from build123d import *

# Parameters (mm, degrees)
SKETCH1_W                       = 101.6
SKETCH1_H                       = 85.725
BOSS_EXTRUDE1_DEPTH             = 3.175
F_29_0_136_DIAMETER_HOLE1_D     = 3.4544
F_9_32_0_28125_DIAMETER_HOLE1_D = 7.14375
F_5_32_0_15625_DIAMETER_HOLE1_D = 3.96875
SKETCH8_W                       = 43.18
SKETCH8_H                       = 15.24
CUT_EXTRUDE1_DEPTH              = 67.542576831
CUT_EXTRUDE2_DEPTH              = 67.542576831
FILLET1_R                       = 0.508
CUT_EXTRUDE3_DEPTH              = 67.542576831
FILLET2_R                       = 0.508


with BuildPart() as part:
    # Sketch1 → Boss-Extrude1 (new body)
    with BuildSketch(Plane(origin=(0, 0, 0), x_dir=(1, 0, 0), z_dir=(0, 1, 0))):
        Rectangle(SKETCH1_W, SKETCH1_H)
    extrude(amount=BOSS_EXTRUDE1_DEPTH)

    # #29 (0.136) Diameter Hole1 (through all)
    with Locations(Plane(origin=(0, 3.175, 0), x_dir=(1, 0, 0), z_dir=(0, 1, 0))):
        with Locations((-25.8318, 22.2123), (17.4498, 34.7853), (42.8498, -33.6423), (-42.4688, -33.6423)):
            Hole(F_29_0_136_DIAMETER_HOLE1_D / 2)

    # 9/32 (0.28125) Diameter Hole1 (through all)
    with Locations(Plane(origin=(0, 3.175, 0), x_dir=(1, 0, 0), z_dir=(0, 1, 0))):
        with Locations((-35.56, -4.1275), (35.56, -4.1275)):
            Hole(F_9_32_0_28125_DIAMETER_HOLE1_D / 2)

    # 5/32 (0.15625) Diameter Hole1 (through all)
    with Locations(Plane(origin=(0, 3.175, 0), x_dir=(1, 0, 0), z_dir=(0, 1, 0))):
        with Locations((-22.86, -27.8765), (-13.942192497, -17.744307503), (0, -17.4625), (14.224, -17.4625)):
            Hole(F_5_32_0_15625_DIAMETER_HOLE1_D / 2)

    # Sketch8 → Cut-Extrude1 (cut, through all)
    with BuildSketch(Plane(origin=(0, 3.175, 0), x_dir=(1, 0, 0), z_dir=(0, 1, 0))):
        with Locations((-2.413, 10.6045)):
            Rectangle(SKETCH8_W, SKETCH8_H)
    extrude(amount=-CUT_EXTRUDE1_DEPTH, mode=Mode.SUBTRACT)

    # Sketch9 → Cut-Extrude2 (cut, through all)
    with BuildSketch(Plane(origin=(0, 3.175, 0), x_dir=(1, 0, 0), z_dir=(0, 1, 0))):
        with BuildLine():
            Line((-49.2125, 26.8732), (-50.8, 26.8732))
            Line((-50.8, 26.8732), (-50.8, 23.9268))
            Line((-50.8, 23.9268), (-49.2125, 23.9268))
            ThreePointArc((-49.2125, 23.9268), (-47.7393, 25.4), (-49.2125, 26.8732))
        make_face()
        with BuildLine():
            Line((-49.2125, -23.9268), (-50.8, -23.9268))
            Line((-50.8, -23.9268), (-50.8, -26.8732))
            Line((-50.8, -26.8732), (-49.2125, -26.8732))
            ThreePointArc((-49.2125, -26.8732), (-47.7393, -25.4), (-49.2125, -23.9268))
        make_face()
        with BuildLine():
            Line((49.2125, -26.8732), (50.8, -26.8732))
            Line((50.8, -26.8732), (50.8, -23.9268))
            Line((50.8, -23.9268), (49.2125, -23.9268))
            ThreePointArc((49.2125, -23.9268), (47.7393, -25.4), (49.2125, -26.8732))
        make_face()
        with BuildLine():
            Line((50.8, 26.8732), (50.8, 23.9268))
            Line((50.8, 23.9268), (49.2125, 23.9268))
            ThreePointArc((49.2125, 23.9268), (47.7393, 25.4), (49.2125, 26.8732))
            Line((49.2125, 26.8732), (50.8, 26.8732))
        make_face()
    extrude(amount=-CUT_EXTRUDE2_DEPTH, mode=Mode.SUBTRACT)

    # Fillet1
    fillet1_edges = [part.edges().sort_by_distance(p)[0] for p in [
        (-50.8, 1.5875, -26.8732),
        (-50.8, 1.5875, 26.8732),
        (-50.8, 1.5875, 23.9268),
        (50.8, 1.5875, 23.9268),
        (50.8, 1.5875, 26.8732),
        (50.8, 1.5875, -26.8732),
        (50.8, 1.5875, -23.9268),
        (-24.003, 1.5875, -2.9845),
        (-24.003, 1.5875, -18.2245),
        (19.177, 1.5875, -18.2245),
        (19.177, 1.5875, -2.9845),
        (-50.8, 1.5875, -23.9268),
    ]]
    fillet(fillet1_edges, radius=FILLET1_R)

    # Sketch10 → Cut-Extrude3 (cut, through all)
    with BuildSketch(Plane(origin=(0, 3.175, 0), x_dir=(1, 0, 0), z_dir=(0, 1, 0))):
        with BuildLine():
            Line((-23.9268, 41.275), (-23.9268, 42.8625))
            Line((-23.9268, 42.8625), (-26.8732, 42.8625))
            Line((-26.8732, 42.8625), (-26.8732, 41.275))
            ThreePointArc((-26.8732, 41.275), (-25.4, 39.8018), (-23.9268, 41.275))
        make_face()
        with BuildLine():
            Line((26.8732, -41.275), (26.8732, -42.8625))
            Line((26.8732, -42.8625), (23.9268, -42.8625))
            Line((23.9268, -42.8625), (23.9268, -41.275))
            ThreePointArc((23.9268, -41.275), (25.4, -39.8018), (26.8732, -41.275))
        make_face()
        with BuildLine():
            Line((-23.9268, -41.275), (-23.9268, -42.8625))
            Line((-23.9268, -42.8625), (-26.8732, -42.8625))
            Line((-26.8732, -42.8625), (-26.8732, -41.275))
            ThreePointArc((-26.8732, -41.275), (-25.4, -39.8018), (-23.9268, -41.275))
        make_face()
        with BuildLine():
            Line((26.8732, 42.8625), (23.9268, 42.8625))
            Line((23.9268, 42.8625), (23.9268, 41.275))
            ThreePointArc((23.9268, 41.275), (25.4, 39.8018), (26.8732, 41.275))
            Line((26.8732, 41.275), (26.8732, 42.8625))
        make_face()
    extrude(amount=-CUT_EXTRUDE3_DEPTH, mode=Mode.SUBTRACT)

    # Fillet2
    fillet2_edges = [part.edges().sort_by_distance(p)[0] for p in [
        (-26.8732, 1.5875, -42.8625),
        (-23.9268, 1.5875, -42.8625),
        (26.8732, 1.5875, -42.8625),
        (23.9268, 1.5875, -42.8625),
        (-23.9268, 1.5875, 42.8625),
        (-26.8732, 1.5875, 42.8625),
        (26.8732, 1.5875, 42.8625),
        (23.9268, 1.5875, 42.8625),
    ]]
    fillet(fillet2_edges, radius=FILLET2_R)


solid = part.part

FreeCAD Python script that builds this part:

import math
import FreeCAD as App
import Part
import Sketcher

V = App.Vector
Q = App.Units.Quantity


def edges_at(feature, points):
    """Names of the edges that pass closest to the given points."""
    edges = feature.Shape.Edges
    near = lambda p: min(range(len(edges)), key=lambda i: edges[i].distToShape(Part.Vertex(*p))[0])
    return sorted({f"Edge{near(p) + 1}" for p in points})

doc = App.newDocument("Part")
params = doc.addObject("Spreadsheet::Sheet", "Params")
for row, (alias, value) in enumerate([
    ("sketch1_width", "4 in"),
    ("sketch1_height", "3.375 in"),
    ("pad1_length", "0.125 in"),
    ("sketch2_diameter", "0.136 in"),
    ("hole_diameter", "0.136 in"),
    ("sketch3_diameter", "0.28125 in"),
    ("hole2_diameter", "0.28125 in"),
    ("sketch4_diameter", "0.15625 in"),
    ("hole3_diameter", "0.15625 in"),
    ("sketch5_width", "1.7 in"),
    ("sketch5_height", "0.6 in"),
    ("sketch6_radius", "0.058 in"),
    ("sketch6_width", "0.0625 in"),
    ("fillet_radius", "0.02 in"),
    ("sketch7_radius", "0.058 in"),
    ("sketch7_height", "0.0625 in"),
    ("fillet2_radius", "0.02 in"),
], start=1):
    params.set(f"A{row}", alias)
    params.set(f"B{row}", "=" + value)
    params.setAlias(f"B{row}", alias)

body = doc.addObject("PartDesign::Body", "Body")

# Sketch on XZ plane
sketch1 = body.newObject("Sketcher::SketchObject", "Sketch")
sketch1.AttachmentSupport = (doc.getObject("XZ_Plane"), [""])
sketch1.MapMode = "FlatFace"
sketch1.addGeometry(Part.LineSegment(V(-51, -43, 0), V(-51, 43, 0)), False)
sketch1.addGeometry(Part.LineSegment(V(-51, 43, 0), V(51, 43, 0)), False)
sketch1.addGeometry(Part.LineSegment(V(51, 43, 0), V(51, -43, 0)), False)
sketch1.addGeometry(Part.LineSegment(V(51, -43, 0), V(-51, -43, 0)), False)
sketch1.addConstraint(Sketcher.Constraint("Coincident", 0, 2, 1, 1))
sketch1.addConstraint(Sketcher.Constraint("Coincident", 1, 2, 2, 1))
sketch1.addConstraint(Sketcher.Constraint("Coincident", 2, 2, 3, 1))
sketch1.addConstraint(Sketcher.Constraint("Coincident", 3, 2, 0, 1))
sketch1.addConstraint(Sketcher.Constraint("Vertical", 0))
sketch1.addConstraint(Sketcher.Constraint("Horizontal", 1))
sketch1.addConstraint(Sketcher.Constraint("Vertical", 2))
sketch1.addConstraint(Sketcher.Constraint("Horizontal", 3))
sketch1.addConstraint(Sketcher.Constraint("Symmetric", 0, 2, 2, 2, -1, 1))
sketch1.addConstraint(Sketcher.Constraint("DistanceX", 1, 1, 1, 2, Q("4 in")))
sketch1.addConstraint(Sketcher.Constraint("DistanceY", 0, 1, 0, 2, Q("3.375 in")))
sketch1.setExpression("Constraints[9]", "Params.sketch1_width")
sketch1.setExpression("Constraints[10]", "Params.sketch1_height")
pad1 = body.newObject("PartDesign::Pad", "Pad")
pad1.Profile = sketch1
pad1.setExpression("Length", "Params.pad1_length")
pad1.Reversed = True

# Sketch on XZ plane
sketch2 = body.newObject("Sketcher::SketchObject", "Sketch001")
sketch2.AttachmentSupport = (doc.getObject("XZ_Plane"), [""])
sketch2.MapMode = "FlatFace"
sketch2.AttachmentOffset = App.Placement(V(0, 0, -0.125 * 25.4), App.Rotation())
sketch2.addGeometry(Part.Circle(V(-25.8, -22.2, 0), V(0, 0, 1), 1.7), False)
sketch2.addGeometry(Part.Circle(V(17.4, -34.8, 0), V(0, 0, 1), 1.7), False)
sketch2.addGeometry(Part.Circle(V(42.8, 33.6, 0), V(0, 0, 1), 1.7), False)
sketch2.addGeometry(Part.Circle(V(-42.5, 33.6, 0), V(0, 0, 1), 1.7), False)
sketch2.addConstraint(Sketcher.Constraint("Equal", 0, 1))
sketch2.addConstraint(Sketcher.Constraint("Equal", 1, 2))
sketch2.addConstraint(Sketcher.Constraint("Equal", 2, 3))
sketch2.addConstraint(Sketcher.Constraint("Horizontal", 2, 3, 3, 3))
sketch2.addConstraint(Sketcher.Constraint("Diameter", 0, Q("0.136 in")))
sketch2.addConstraint(Sketcher.Constraint("DistanceX", 1, 3, 2, 3, Q("1 in")))
sketch2.addConstraint(Sketcher.Constraint("DistanceX", 0, 3, -1, 1, Q("1.017 in")))
sketch2.addConstraint(Sketcher.Constraint("DistanceX", -1, 1, 1, 3, Q("0.687 in")))
sketch2.addConstraint(Sketcher.Constraint("DistanceX", 3, 3, -1, 1, Q("1.672 in")))
sketch2.addConstraint(Sketcher.Constraint("DistanceY", 1, 3, 0, 3, Q("0.495 in")))
sketch2.addConstraint(Sketcher.Constraint("DistanceY", 1, 3, 2, 3, Q("2.694 in")))
sketch2.addConstraint(Sketcher.Constraint("DistanceY", 0, 3, -1, 1, Q("0.8745 in")))
sketch2.setExpression("Constraints[4]", "Params.sketch2_diameter")
doc.recompute()
hole = body.newObject("PartDesign::Hole", "Hole")
hole.Profile = sketch2
hole.ThreadType = "None"
hole.setExpression("Diameter", "Params.hole_diameter")
hole.DepthType = "ThroughAll"
hole.Reversed = True

# Sketch on XZ plane
sketch3 = body.newObject("Sketcher::SketchObject", "Sketch002")
sketch3.AttachmentSupport = (doc.getObject("XZ_Plane"), [""])
sketch3.MapMode = "FlatFace"
sketch3.AttachmentOffset = App.Placement(V(0, 0, -0.125 * 25.4), App.Rotation())
sketch3.addGeometry(Part.Circle(V(-35.6, 4.1, 0), V(0, 0, 1), 3.6), False)
sketch3.addGeometry(Part.Circle(V(35.6, 4.1, 0), V(0, 0, 1), 3.6), False)
sketch3.addConstraint(Sketcher.Constraint("Equal", 0, 1))
sketch3.addConstraint(Sketcher.Constraint("Symmetric", 0, 3, 1, 3, -2))
sketch3.addConstraint(Sketcher.Constraint("Diameter", 0, Q("0.28125 in")))
sketch3.addConstraint(Sketcher.Constraint("DistanceX", 0, 3, -1, 1, Q("1.4 in")))
sketch3.addConstraint(Sketcher.Constraint("DistanceY", -1, 1, 0, 3, Q("0.1625 in")))
sketch3.setExpression("Constraints[2]", "Params.sketch3_diameter")
doc.recompute()
hole2 = body.newObject("PartDesign::Hole", "Hole001")
hole2.Profile = sketch3
hole2.ThreadType = "None"
hole2.setExpression("Diameter", "Params.hole2_diameter")
hole2.DepthType = "ThroughAll"
hole2.Reversed = True

# Sketch on XZ plane
sketch4 = body.newObject("Sketcher::SketchObject", "Sketch003")
sketch4.AttachmentSupport = (doc.getObject("XZ_Plane"), [""])
sketch4.MapMode = "FlatFace"
sketch4.AttachmentOffset = App.Placement(V(0, 0, -0.125 * 25.4), App.Rotation())
sketch4.addGeometry(Part.Circle(V(-22.9, 27.9, 0), V(0, 0, 1), 2), False)
sketch4.addGeometry(Part.Circle(V(-13.9, 17.7, 0), V(0, 0, 1), 2), False)
sketch4.addGeometry(Part.Circle(V(0, 17.5, 0), V(0, 0, 1), 2), False)
sketch4.addGeometry(Part.Circle(V(14.2, 17.5, 0), V(0, 0, 1), 2), False)
sketch4.addConstraint(Sketcher.Constraint("Equal", 0, 1))
sketch4.addConstraint(Sketcher.Constraint("Equal", 1, 2))
sketch4.addConstraint(Sketcher.Constraint("Equal", 2, 3))
sketch4.addConstraint(Sketcher.Constraint("PointOnObject", 2, 3, -2))
sketch4.addConstraint(Sketcher.Constraint("Horizontal", 2, 3, 3, 3))
sketch4.addConstraint(Sketcher.Constraint("Diameter", 0, Q("0.15625 in")))
sketch4.addConstraint(Sketcher.Constraint("DistanceX", 0, 3, -1, 1, Q("0.9 in")))
sketch4.addConstraint(Sketcher.Constraint("DistanceX", -1, 1, 3, 3, Q("0.56 in")))
sketch4.addConstraint(Sketcher.Constraint("DistanceY", 2, 3, 0, 3, Q("0.41 in")))
sketch4.addConstraint(Sketcher.Constraint("DistanceY", -1, 1, 2, 3, Q("0.6875 in")))
sketch4.addConstraint(Sketcher.Constraint("DistanceX", 1, 3, -1, 1, Q("13.942192 mm")))
sketch4.addConstraint(Sketcher.Constraint("DistanceY", -1, 1, 1, 3, Q("17.744308 mm")))
sketch4.setExpression("Constraints[5]", "Params.sketch4_diameter")
doc.recompute()
hole3 = body.newObject("PartDesign::Hole", "Hole002")
hole3.Profile = sketch4
hole3.ThreadType = "None"
hole3.setExpression("Diameter", "Params.hole3_diameter")
hole3.DepthType = "ThroughAll"
hole3.Reversed = True

# Sketch on XZ plane
sketch5 = body.newObject("Sketcher::SketchObject", "Sketch004")
sketch5.AttachmentSupport = (doc.getObject("XZ_Plane"), [""])
sketch5.MapMode = "FlatFace"
sketch5.AttachmentOffset = App.Placement(V(0, 0, -0.125 * 25.4), App.Rotation())
sketch5.addGeometry(Part.LineSegment(V(-24, -18, 0), V(-24, -3, 0)), False)
sketch5.addGeometry(Part.LineSegment(V(-24, -3, 0), V(19, -3, 0)), False)
sketch5.addGeometry(Part.LineSegment(V(19, -3, 0), V(19, -18, 0)), False)
sketch5.addGeometry(Part.LineSegment(V(19, -18, 0), V(-24, -18, 0)), False)
sketch5.addConstraint(Sketcher.Constraint("Coincident", 0, 2, 1, 1))
sketch5.addConstraint(Sketcher.Constraint("Coincident", 1, 2, 2, 1))
sketch5.addConstraint(Sketcher.Constraint("Coincident", 2, 2, 3, 1))
sketch5.addConstraint(Sketcher.Constraint("Coincident", 3, 2, 0, 1))
sketch5.addConstraint(Sketcher.Constraint("Vertical", 0))
sketch5.addConstraint(Sketcher.Constraint("Horizontal", 1))
sketch5.addConstraint(Sketcher.Constraint("Vertical", 2))
sketch5.addConstraint(Sketcher.Constraint("Horizontal", 3))
sketch5.addConstraint(Sketcher.Constraint("DistanceX", 1, 1, 1, 2, Q("1.7 in")))
sketch5.addConstraint(Sketcher.Constraint("DistanceY", 0, 1, 0, 2, Q("0.6 in")))
sketch5.addConstraint(Sketcher.Constraint("DistanceX", 0, 2, -1, 1, Q("0.945 in")))
sketch5.addConstraint(Sketcher.Constraint("DistanceY", 0, 2, -1, 1, Q("0.1175 in")))
sketch5.setExpression("Constraints[8]", "Params.sketch5_width")
sketch5.setExpression("Constraints[9]", "Params.sketch5_height")
pocket1 = body.newObject("PartDesign::Pocket", "Pocket")
pocket1.Profile = sketch5
pocket1.Type = "ThroughAll"
pocket1.Reversed = True

# Sketch on XZ plane
sketch6 = body.newObject("Sketcher::SketchObject", "Sketch005")
sketch6.AttachmentSupport = (doc.getObject("XZ_Plane"), [""])
sketch6.MapMode = "FlatFace"
sketch6.AttachmentOffset = App.Placement(V(0, 0, -0.125 * 25.4), App.Rotation())
sketch6.addGeometry(Part.LineSegment(V(-49.2, -26.9, 0), V(-50.8, -26.9, 0)), False)
sketch6.addGeometry(Part.LineSegment(V(-50.8, -26.9, 0), V(-50.8, -23.9, 0)), False)
sketch6.addGeometry(Part.LineSegment(V(-50.8, -23.9, 0), V(-49.2, -23.9, 0)), False)
sketch6.addGeometry(Part.ArcOfCircle(Part.Circle(V(-49.2, -25.4, 0), V(0, 0, 1), 1.5), math.radians(-90), math.radians(90)), False)
sketch6.addGeometry(Part.LineSegment(V(-49.2, 23.9, 0), V(-50.8, 23.9, 0)), False)
sketch6.addGeometry(Part.LineSegment(V(-50.8, 23.9, 0), V(-50.8, 26.9, 0)), False)
sketch6.addGeometry(Part.LineSegment(V(-50.8, 26.9, 0), V(-49.2, 26.9, 0)), False)
sketch6.addGeometry(Part.ArcOfCircle(Part.Circle(V(-49.2, 25.4, 0), V(0, 0, 1), 1.5), math.radians(-90), math.radians(90)), False)
sketch6.addGeometry(Part.LineSegment(V(49.2, 26.9, 0), V(50.8, 26.9, 0)), False)
sketch6.addGeometry(Part.LineSegment(V(50.8, 26.9, 0), V(50.8, 23.9, 0)), False)
sketch6.addGeometry(Part.LineSegment(V(50.8, 23.9, 0), V(49.2, 23.9, 0)), False)
sketch6.addGeometry(Part.ArcOfCircle(Part.Circle(V(49.2, 25.4, 0), V(0, 0, 1), 1.5), math.radians(90), math.radians(270)), False)
sketch6.addGeometry(Part.LineSegment(V(50.8, -23.9, 0), V(50.8, -26.9, 0)), False)
sketch6.addGeometry(Part.LineSegment(V(50.8, -26.9, 0), V(49.2, -26.9, 0)), False)
sketch6.addGeometry(Part.ArcOfCircle(Part.Circle(V(49.2, -25.4, 0), V(0, 0, 1), 1.5), math.radians(90), math.radians(270)), False)
sketch6.addGeometry(Part.LineSegment(V(49.2, -23.9, 0), V(50.8, -23.9, 0)), False)
sketch6.addConstraint(Sketcher.Constraint("Coincident", 0, 2, 1, 1))
sketch6.addConstraint(Sketcher.Constraint("Coincident", 1, 2, 2, 1))
sketch6.addConstraint(Sketcher.Constraint("Tangent", 2, 2, 3, 2))
sketch6.addConstraint(Sketcher.Constraint("Tangent", 3, 1, 0, 1))
sketch6.addConstraint(Sketcher.Constraint("Coincident", 4, 2, 5, 1))
sketch6.addConstraint(Sketcher.Constraint("Coincident", 5, 2, 6, 1))
sketch6.addConstraint(Sketcher.Constraint("Tangent", 6, 2, 7, 2))
sketch6.addConstraint(Sketcher.Constraint("Tangent", 7, 1, 4, 1))
sketch6.addConstraint(Sketcher.Constraint("Coincident", 8, 2, 9, 1))
sketch6.addConstraint(Sketcher.Constraint("Coincident", 9, 2, 10, 1))
sketch6.addConstraint(Sketcher.Constraint("Tangent", 10, 2, 11, 2))
sketch6.addConstraint(Sketcher.Constraint("Tangent", 11, 1, 8, 1))
sketch6.addConstraint(Sketcher.Constraint("Coincident", 12, 2, 13, 1))
sketch6.addConstraint(Sketcher.Constraint("Tangent", 13, 2, 14, 2))
sketch6.addConstraint(Sketcher.Constraint("Tangent", 14, 1, 15, 1))
sketch6.addConstraint(Sketcher.Constraint("Coincident", 15, 2, 12, 1))
sketch6.addConstraint(Sketcher.Constraint("Horizontal", 0))
sketch6.addConstraint(Sketcher.Constraint("Vertical", 1))
sketch6.addConstraint(Sketcher.Constraint("Horizontal", 2))
sketch6.addConstraint(Sketcher.Constraint("Horizontal", 4))
sketch6.addConstraint(Sketcher.Constraint("Vertical", 5))
sketch6.addConstraint(Sketcher.Constraint("Horizontal", 6))
sketch6.addConstraint(Sketcher.Constraint("Horizontal", 8))
sketch6.addConstraint(Sketcher.Constraint("Vertical", 9))
sketch6.addConstraint(Sketcher.Constraint("Horizontal", 10))
sketch6.addConstraint(Sketcher.Constraint("Vertical", 12))
sketch6.addConstraint(Sketcher.Constraint("Horizontal", 13))
sketch6.addConstraint(Sketcher.Constraint("Horizontal", 15))
sketch6.addConstraint(Sketcher.Constraint("Equal", 3, 7))
sketch6.addConstraint(Sketcher.Constraint("Equal", 7, 11))
sketch6.addConstraint(Sketcher.Constraint("Equal", 11, 14))
sketch6.addConstraint(Sketcher.Constraint("Symmetric", 3, 3, 11, 3, -1, 1))
sketch6.addConstraint(Sketcher.Constraint("Symmetric", 7, 3, 14, 3, -1, 1))
sketch6.addConstraint(Sketcher.Constraint("Symmetric", 7, 3, 11, 3, -2))
sketch6.addConstraint(Sketcher.Constraint("Vertical", 1, 2, 4, 2))
sketch6.addConstraint(Sketcher.Constraint("Vertical", 9, 2, 12, 2))
sketch6.addConstraint(Sketcher.Constraint("Equal", 6, 8))
sketch6.addConstraint(Sketcher.Constraint("DistanceY", 3, 3, -1, 1, Q("1 in")))
sketch6.addConstraint(Sketcher.Constraint("DistanceX", 0, 2, -1, 1, Q("2 in")))
sketch6.addConstraint(Sketcher.Constraint("Radius", 3, Q("0.058 in")))
sketch6.addConstraint(Sketcher.Constraint("DistanceX", 0, 2, 0, 1, Q("0.0625 in")))
sketch6.setExpression("Constraints[39]", "Params.sketch6_radius")
sketch6.setExpression("Constraints[40]", "Params.sketch6_width")
pocket2 = body.newObject("PartDesign::Pocket", "Pocket001")
pocket2.Profile = sketch6
pocket2.Type = "ThroughAll"
pocket2.Reversed = True
doc.recompute()

fillet = body.newObject("PartDesign::Fillet", "Fillet")
fillet.Base = (pocket2, edges_at(pocket2, [
    (-50.8, 1.587, -26.873),
    (-50.8, 1.587, 26.873),
    (-50.8, 1.587, 23.927),
    (50.8, 1.587, 23.927),
    (50.8, 1.587, 26.873),
    (50.8, 1.587, -26.873),
    (50.8, 1.587, -23.927),
    (-24.003, 1.587, -2.985),
    (-24.003, 1.587, -18.224),
    (19.177, 1.587, -18.224),
    (19.177, 1.587, -2.985),
    (-50.8, 1.587, -23.927),
]))
fillet.setExpression("Radius", "Params.fillet_radius")

# Sketch on XZ plane
sketch7 = body.newObject("Sketcher::SketchObject", "Sketch006")
sketch7.AttachmentSupport = (doc.getObject("XZ_Plane"), [""])
sketch7.MapMode = "FlatFace"
sketch7.AttachmentOffset = App.Placement(V(0, 0, -0.125 * 25.4), App.Rotation())
sketch7.addGeometry(Part.LineSegment(V(-23.9, -41.3, 0), V(-23.9, -42.9, 0)), False)
sketch7.addGeometry(Part.LineSegment(V(-23.9, -42.9, 0), V(-26.9, -42.9, 0)), False)
sketch7.addGeometry(Part.LineSegment(V(-26.9, -42.9, 0), V(-26.9, -41.3, 0)), False)
sketch7.addGeometry(Part.ArcOfCircle(Part.Circle(V(-25.4, -41.3, 0), V(0, 0, 1), 1.5), math.radians(0), math.radians(180)), False)
sketch7.addGeometry(Part.LineSegment(V(26.9, 42.9, 0), V(26.9, 41.3, 0)), False)
sketch7.addGeometry(Part.ArcOfCircle(Part.Circle(V(25.4, 41.3, 0), V(0, 0, 1), 1.5), math.radians(180), math.radians(360)), False)
sketch7.addGeometry(Part.LineSegment(V(23.9, 41.3, 0), V(23.9, 42.9, 0)), False)
sketch7.addGeometry(Part.LineSegment(V(23.9, 42.9, 0), V(26.9, 42.9, 0)), False)
sketch7.addGeometry(Part.LineSegment(V(-23.9, 42.9, 0), V(-23.9, 41.3, 0)), False)
sketch7.addGeometry(Part.ArcOfCircle(Part.Circle(V(-25.4, 41.3, 0), V(0, 0, 1), 1.5), math.radians(180), math.radians(360)), False)
sketch7.addGeometry(Part.LineSegment(V(-26.9, 41.3, 0), V(-26.9, 42.9, 0)), False)
sketch7.addGeometry(Part.LineSegment(V(-26.9, 42.9, 0), V(-23.9, 42.9, 0)), False)
sketch7.addGeometry(Part.LineSegment(V(26.9, -42.9, 0), V(23.9, -42.9, 0)), False)
sketch7.addGeometry(Part.LineSegment(V(23.9, -42.9, 0), V(23.9, -41.3, 0)), False)
sketch7.addGeometry(Part.ArcOfCircle(Part.Circle(V(25.4, -41.3, 0), V(0, 0, 1), 1.5), math.radians(0), math.radians(180)), False)
sketch7.addGeometry(Part.LineSegment(V(26.9, -41.3, 0), V(26.9, -42.9, 0)), False)
sketch7.addConstraint(Sketcher.Constraint("Coincident", 0, 2, 1, 1))
sketch7.addConstraint(Sketcher.Constraint("Coincident", 1, 2, 2, 1))
sketch7.addConstraint(Sketcher.Constraint("Tangent", 2, 2, 3, 2))
sketch7.addConstraint(Sketcher.Constraint("Tangent", 3, 1, 0, 1))
sketch7.addConstraint(Sketcher.Constraint("Tangent", 4, 2, 5, 2))
sketch7.addConstraint(Sketcher.Constraint("Tangent", 5, 1, 6, 1))
sketch7.addConstraint(Sketcher.Constraint("Coincident", 6, 2, 7, 1))
sketch7.addConstraint(Sketcher.Constraint("Coincident", 7, 2, 4, 1))
sketch7.addConstraint(Sketcher.Constraint("Tangent", 8, 2, 9, 2))
sketch7.addConstraint(Sketcher.Constraint("Tangent", 9, 1, 10, 1))
sketch7.addConstraint(Sketcher.Constraint("Coincident", 10, 2, 11, 1))
sketch7.addConstraint(Sketcher.Constraint("Coincident", 11, 2, 8, 1))
sketch7.addConstraint(Sketcher.Constraint("Coincident", 12, 2, 13, 1))
sketch7.addConstraint(Sketcher.Constraint("Tangent", 13, 2, 14, 2))
sketch7.addConstraint(Sketcher.Constraint("Tangent", 14, 1, 15, 1))
sketch7.addConstraint(Sketcher.Constraint("Coincident", 15, 2, 12, 1))
sketch7.addConstraint(Sketcher.Constraint("Vertical", 0))
sketch7.addConstraint(Sketcher.Constraint("Horizontal", 1))
sketch7.addConstraint(Sketcher.Constraint("Vertical", 2))
sketch7.addConstraint(Sketcher.Constraint("Vertical", 4))
sketch7.addConstraint(Sketcher.Constraint("Vertical", 6))
sketch7.addConstraint(Sketcher.Constraint("Horizontal", 7))
sketch7.addConstraint(Sketcher.Constraint("Vertical", 8))
sketch7.addConstraint(Sketcher.Constraint("Vertical", 10))
sketch7.addConstraint(Sketcher.Constraint("Horizontal", 11))
sketch7.addConstraint(Sketcher.Constraint("Horizontal", 12))
sketch7.addConstraint(Sketcher.Constraint("Vertical", 13))
sketch7.addConstraint(Sketcher.Constraint("Vertical", 15))
sketch7.addConstraint(Sketcher.Constraint("Equal", 3, 5))
sketch7.addConstraint(Sketcher.Constraint("Equal", 5, 9))
sketch7.addConstraint(Sketcher.Constraint("Equal", 9, 14))
sketch7.addConstraint(Sketcher.Constraint("Symmetric", 3, 3, 5, 3, -1, 1))
sketch7.addConstraint(Sketcher.Constraint("Symmetric", 9, 3, 14, 3, -1, 1))
sketch7.addConstraint(Sketcher.Constraint("Symmetric", 5, 3, 9, 3, -2))
sketch7.addConstraint(Sketcher.Constraint("Horizontal", 7, 2, 10, 2))
sketch7.addConstraint(Sketcher.Constraint("Horizontal", 1, 2, 12, 2))
sketch7.addConstraint(Sketcher.Constraint("Equal", 2, 4))
sketch7.addConstraint(Sketcher.Constraint("DistanceX", 3, 3, -1, 1, Q("1 in")))
sketch7.addConstraint(Sketcher.Constraint("Radius", 3, Q("0.058 in")))
sketch7.addConstraint(Sketcher.Constraint("DistanceY", 0, 2, 0, 1, Q("0.0625 in")))
sketch7.addConstraint(Sketcher.Constraint("DistanceY", 3, 3, 5, 3, Q("3.25 in")))
sketch7.setExpression("Constraints[38]", "Params.sketch7_radius")
sketch7.setExpression("Constraints[39]", "Params.sketch7_height")
pocket3 = body.newObject("PartDesign::Pocket", "Pocket002")
pocket3.Profile = sketch7
pocket3.Type = "ThroughAll"
pocket3.Reversed = True
doc.recompute()

fillet2 = body.newObject("PartDesign::Fillet", "Fillet001")
fillet2.Base = (pocket3, edges_at(pocket3, [
    (-26.873, 1.587, -42.862),
    (-23.927, 1.587, -42.862),
    (26.873, 1.587, -42.862),
    (23.927, 1.587, -42.862),
    (-23.927, 1.587, 42.862),
    (-26.873, 1.587, 42.862),
    (26.873, 1.587, 42.862),
    (23.927, 1.587, 42.862),
]))
fillet2.setExpression("Radius", "Params.fillet2_radius")

doc.recompute()
